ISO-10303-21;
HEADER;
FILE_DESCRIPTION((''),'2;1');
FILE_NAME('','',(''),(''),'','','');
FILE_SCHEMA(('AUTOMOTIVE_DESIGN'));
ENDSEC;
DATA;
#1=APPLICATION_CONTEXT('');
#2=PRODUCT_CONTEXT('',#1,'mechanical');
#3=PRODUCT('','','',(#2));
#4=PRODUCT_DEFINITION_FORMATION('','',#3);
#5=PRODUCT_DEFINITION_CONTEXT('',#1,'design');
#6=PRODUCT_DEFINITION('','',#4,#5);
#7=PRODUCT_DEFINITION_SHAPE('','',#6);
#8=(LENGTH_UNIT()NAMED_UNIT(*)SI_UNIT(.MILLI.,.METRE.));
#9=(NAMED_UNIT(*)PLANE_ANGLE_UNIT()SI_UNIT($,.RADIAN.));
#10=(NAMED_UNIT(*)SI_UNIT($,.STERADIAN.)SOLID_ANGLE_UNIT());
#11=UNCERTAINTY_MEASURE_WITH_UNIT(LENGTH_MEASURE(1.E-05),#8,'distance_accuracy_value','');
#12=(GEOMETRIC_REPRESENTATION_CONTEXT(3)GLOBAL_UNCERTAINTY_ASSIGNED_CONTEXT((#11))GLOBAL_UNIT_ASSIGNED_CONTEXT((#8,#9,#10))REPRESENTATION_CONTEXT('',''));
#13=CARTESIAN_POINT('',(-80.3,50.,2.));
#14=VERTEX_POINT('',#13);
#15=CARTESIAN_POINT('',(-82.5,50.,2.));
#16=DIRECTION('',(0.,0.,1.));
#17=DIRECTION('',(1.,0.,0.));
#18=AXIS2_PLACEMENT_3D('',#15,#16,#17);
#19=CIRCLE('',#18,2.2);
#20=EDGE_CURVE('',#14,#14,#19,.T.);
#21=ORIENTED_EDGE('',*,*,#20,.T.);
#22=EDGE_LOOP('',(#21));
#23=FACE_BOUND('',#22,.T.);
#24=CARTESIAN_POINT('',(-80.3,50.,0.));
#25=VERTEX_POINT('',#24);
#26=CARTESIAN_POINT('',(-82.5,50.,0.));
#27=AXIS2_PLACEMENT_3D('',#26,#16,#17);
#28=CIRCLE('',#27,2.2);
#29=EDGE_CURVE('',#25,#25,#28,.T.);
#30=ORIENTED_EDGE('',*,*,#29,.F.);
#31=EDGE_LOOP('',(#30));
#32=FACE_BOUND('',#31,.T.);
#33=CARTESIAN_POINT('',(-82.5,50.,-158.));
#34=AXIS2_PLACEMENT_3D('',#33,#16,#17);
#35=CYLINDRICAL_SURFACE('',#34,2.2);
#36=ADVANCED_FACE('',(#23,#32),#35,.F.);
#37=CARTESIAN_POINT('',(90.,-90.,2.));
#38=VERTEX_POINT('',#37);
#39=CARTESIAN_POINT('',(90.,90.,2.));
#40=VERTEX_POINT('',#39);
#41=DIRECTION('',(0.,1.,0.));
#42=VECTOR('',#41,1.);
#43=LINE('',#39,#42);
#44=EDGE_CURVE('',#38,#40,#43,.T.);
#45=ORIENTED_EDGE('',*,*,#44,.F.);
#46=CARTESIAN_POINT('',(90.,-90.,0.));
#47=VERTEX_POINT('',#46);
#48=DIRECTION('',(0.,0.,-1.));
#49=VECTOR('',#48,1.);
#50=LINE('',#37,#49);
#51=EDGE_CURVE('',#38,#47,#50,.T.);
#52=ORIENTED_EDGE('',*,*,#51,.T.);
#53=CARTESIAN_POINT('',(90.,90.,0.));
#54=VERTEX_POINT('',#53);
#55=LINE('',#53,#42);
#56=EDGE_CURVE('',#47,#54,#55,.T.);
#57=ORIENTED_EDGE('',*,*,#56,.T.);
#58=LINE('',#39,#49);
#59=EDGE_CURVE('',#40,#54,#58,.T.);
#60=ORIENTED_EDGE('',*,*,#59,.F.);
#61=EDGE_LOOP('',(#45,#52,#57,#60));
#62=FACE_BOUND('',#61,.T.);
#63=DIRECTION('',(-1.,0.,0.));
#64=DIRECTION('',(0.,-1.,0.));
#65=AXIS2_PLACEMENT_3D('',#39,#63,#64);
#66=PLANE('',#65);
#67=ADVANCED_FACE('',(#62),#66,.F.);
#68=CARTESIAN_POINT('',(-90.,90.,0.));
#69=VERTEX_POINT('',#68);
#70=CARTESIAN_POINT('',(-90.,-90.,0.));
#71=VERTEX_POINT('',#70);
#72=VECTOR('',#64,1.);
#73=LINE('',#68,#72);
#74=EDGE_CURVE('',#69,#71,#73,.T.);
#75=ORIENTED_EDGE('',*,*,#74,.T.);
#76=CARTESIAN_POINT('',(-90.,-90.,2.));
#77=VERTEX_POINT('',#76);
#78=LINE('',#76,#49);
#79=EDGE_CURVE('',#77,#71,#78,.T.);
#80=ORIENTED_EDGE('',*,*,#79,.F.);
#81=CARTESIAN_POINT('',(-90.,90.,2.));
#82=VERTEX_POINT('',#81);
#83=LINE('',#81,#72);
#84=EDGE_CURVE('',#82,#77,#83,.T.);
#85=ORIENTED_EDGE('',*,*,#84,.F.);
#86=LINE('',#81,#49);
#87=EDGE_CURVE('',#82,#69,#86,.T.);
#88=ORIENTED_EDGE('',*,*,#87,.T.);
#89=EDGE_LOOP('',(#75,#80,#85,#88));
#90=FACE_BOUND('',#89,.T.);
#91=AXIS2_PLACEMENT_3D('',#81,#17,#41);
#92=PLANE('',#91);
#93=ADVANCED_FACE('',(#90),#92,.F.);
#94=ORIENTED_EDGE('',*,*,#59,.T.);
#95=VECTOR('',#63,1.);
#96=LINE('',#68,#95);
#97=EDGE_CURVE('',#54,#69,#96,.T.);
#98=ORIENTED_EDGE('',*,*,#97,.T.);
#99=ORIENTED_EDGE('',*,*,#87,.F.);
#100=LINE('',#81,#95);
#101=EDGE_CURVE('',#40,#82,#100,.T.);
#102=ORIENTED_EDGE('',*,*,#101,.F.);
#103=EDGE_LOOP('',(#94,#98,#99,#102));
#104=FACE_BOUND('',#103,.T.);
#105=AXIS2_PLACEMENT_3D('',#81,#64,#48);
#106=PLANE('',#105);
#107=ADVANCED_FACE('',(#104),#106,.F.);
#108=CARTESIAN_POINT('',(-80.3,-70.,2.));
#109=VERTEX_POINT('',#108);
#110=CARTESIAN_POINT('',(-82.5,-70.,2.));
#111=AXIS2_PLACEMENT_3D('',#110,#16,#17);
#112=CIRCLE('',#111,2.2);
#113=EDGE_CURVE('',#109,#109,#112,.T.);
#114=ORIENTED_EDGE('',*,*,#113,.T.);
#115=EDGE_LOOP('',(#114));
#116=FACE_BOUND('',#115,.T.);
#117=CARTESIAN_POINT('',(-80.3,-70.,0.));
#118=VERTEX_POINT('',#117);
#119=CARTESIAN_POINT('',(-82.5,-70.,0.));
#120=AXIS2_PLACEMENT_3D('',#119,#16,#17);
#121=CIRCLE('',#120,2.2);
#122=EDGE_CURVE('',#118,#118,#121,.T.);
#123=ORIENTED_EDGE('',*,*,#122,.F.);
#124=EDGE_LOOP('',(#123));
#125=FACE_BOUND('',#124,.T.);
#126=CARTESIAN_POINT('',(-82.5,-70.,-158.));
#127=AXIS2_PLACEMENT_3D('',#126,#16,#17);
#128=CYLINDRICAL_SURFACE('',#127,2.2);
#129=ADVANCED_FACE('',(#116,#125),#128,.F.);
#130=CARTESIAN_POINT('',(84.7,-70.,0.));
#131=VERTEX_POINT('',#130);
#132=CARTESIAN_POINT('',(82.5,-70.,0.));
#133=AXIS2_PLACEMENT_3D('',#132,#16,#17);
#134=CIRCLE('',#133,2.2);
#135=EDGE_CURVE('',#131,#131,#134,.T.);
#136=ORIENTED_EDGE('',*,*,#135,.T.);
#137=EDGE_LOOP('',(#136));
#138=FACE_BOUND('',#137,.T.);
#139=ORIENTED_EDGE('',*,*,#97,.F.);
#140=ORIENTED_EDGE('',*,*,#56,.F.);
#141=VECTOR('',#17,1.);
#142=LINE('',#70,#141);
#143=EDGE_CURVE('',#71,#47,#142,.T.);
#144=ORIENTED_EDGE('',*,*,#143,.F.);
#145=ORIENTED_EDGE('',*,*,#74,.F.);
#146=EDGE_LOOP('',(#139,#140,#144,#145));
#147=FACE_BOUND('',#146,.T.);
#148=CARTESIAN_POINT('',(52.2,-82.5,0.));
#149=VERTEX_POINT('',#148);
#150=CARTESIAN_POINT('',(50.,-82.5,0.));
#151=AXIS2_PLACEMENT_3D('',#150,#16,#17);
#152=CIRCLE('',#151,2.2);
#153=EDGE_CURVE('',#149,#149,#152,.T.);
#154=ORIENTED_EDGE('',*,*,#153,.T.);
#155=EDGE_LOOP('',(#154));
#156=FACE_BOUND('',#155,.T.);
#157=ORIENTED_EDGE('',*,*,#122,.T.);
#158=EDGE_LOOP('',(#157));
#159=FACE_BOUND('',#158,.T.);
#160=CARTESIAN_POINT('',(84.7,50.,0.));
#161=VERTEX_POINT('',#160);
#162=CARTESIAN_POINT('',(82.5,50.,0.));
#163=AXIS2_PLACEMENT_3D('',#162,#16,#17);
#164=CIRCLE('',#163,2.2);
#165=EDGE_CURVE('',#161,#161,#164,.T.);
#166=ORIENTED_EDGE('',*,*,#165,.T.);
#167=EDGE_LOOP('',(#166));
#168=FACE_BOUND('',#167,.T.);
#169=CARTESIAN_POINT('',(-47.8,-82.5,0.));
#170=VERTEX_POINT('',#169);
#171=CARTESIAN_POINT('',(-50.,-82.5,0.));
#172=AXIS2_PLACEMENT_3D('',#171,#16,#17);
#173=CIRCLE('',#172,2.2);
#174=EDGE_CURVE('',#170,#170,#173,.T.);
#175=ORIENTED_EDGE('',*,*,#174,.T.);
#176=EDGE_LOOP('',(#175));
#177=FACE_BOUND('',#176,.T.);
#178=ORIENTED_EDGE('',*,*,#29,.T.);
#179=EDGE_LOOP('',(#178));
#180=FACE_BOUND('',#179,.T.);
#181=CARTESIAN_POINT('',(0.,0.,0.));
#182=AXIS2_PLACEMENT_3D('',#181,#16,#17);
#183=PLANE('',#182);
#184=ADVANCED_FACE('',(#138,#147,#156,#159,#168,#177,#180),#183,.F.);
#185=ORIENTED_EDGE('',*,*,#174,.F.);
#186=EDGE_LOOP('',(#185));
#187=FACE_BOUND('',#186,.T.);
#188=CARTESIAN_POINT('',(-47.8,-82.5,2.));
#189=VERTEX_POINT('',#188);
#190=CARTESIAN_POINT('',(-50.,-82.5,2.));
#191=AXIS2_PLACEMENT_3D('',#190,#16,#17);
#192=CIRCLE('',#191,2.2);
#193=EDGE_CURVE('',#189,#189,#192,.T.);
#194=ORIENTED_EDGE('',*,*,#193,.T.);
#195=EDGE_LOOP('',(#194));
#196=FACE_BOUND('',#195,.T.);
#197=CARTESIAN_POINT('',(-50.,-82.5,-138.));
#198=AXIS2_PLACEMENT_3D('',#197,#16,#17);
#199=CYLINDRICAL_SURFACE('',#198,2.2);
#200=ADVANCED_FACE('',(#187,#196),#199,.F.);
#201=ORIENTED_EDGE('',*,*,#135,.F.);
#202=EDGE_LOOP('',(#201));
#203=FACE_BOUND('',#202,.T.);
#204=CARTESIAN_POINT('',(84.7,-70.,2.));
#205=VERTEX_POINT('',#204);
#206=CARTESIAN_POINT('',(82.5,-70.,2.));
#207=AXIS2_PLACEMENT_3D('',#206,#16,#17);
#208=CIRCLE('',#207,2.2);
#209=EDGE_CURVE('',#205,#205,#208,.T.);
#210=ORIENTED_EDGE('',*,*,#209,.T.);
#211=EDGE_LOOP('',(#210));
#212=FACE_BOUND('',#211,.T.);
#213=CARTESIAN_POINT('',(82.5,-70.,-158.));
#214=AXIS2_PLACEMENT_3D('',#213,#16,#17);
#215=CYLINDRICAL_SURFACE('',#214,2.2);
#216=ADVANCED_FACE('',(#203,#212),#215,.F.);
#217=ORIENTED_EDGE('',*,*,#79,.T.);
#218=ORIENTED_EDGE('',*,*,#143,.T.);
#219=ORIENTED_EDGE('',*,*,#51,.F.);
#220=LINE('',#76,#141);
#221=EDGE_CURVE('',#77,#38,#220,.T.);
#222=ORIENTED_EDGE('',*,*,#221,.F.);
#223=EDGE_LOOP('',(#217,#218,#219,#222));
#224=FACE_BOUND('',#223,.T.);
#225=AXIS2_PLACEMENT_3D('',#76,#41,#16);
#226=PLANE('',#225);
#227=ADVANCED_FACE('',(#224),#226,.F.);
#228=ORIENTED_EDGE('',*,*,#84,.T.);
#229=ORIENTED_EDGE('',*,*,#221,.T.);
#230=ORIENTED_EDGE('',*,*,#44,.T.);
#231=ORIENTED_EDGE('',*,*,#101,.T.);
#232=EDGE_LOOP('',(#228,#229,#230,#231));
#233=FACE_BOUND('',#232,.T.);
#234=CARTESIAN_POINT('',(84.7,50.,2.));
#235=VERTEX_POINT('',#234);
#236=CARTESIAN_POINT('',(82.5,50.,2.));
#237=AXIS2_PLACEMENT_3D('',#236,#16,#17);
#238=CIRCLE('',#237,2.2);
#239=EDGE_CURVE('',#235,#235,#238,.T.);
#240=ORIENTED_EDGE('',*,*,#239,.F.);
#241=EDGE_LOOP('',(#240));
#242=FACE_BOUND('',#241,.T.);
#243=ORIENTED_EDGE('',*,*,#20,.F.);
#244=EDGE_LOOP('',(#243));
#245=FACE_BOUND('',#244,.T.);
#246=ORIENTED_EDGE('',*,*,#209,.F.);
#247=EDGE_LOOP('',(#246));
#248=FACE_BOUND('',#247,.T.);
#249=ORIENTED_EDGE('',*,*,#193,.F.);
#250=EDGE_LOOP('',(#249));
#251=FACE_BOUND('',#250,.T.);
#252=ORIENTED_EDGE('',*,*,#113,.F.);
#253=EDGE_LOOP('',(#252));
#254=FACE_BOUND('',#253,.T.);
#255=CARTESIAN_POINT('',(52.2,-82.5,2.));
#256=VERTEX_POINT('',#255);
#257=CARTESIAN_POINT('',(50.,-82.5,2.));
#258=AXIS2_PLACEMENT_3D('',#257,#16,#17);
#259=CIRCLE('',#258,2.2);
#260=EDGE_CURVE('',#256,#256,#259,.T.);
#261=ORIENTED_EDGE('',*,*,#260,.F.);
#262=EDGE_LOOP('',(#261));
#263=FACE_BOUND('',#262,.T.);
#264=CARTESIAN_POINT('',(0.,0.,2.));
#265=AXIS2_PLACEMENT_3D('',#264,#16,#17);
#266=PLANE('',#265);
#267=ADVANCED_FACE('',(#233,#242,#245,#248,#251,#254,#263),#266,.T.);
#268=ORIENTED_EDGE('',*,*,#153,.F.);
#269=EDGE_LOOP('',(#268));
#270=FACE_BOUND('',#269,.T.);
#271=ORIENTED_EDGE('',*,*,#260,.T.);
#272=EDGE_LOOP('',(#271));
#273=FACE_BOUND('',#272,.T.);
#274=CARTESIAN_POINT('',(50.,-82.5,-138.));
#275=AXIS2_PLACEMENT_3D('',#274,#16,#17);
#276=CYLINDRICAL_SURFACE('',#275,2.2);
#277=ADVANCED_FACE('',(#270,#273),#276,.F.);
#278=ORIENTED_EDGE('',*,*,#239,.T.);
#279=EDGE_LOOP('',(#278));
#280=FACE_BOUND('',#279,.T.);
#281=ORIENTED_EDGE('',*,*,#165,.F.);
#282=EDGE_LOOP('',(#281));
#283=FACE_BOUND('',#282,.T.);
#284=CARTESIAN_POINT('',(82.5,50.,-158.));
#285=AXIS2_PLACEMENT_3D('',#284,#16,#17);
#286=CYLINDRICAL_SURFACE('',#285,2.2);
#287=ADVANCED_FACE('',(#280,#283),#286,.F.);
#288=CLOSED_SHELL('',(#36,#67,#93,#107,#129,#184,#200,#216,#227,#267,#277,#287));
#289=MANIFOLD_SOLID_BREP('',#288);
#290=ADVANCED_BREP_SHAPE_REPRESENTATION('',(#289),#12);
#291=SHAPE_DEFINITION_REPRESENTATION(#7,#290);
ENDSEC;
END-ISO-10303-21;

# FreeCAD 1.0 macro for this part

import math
import FreeCAD as App
import Part
import Sketcher
Q = App.Units.Quantity

doc = App.newDocument("Part")
body = doc.addObject("PartDesign::Body", "Body")

# Sketch on XY plane
sketch1 = doc.addObject("Sketcher::SketchObject", "Sketch")
body.addObject(sketch1)
sketch1.AttachmentSupport = (doc.XY_Plane, [""])
sketch1.MapMode = "FlatFace"
sketch1.addGeometry([
    Part.LineSegment(App.Vector(-90, 90, 0), App.Vector(-90, -90, 0)),
    Part.LineSegment(App.Vector(-90, -90, 0), App.Vector(90, -90, 0)),
    Part.LineSegment(App.Vector(90, -90, 0), App.Vector(90, 90, 0)),
    Part.LineSegment(App.Vector(90, 90, 0), App.Vector(-90, 90, 0)),
], False)
sketch1.addConstraint([
    Sketcher.Constraint("Coincident", 0, 2, 1, 1),
    Sketcher.Constraint("Coincident", 1, 2, 2, 1),
    Sketcher.Constraint("Coincident", 2, 2, 3, 1),
    Sketcher.Constraint("Coincident", 3, 2, 0, 1),
    Sketcher.Constraint("Vertical", 0),
    Sketcher.Constraint("Horizontal", 1),
    Sketcher.Constraint("Vertical", 2),
    Sketcher.Constraint("Horizontal", 3),
    Sketcher.Constraint("Symmetric", 0, 2, 2, 2, -1, 1),
    Sketcher.Constraint("Equal", 3, 0),
    Sketcher.Constraint("DistanceX", 1, 1, 1, 2, Q("180 mm")),
])
pad1 = doc.addObject("PartDesign::Pad", "Pad")
body.addObject(pad1)
pad1.Profile = sketch1
pad1.Length = 2

# Sketch on XY plane
sketch2 = doc.addObject("Sketcher::SketchObject", "Sketch001")
body.addObject(sketch2)
sketch2.AttachmentSupport = (doc.XY_Plane, [""])
sketch2.MapMode = "FlatFace"
sketch2.AttachmentOffset = App.Placement(App.Vector(0, 0, 2), App.Rotation())
sketch2.addGeometry([
    Part.ArcOfCircle(Part.Circle(App.Vector(-50, -82.5, 0), App.Vector(0, 0, 1), 2.2), math.radians(180), math.radians(270)),  # 0
    Part.ArcOfCircle(Part.Circle(App.Vector(-50, -82.5, 0), App.Vector(0, 0, 1), 2.2), math.radians(-90), math.radians(0)),  # 1
    Part.ArcOfCircle(Part.Circle(App.Vector(-50, -82.5, 0), App.Vector(0, 0, 1), 2.2), math.radians(0), math.radians(180)),  # 2
    Part.ArcOfCircle(Part.Circle(App.Vector(50, -82.5, 0), App.Vector(0, 0, 1), 2.2), math.radians(0), math.radians(270)),  # 3
    Part.ArcOfCircle(Part.Circle(App.Vector(50, -82.5, 0), App.Vector(0, 0, 1), 2.2), math.radians(-90), math.radians(0)),  # 4
], False)
sketch2.addConstraint([
    Sketcher.Constraint("Tangent", 0, 2, 1, 1),
    Sketcher.Constraint("Tangent", 1, 2, 2, 1),
    Sketcher.Constraint("Tangent", 2, 2, 0, 1),
    Sketcher.Constraint("Tangent", 3, 1, 4, 2),
    Sketcher.Constraint("Coincident", 4, 1, 3, 2),
    Sketcher.Constraint("Equal", 2, 3),
    Sketcher.Constraint("Symmetric", 0, 3, 3, 3, -2),
    Sketcher.Constraint("Horizontal", 4, 3, 1, 2),
    Sketcher.Constraint("Horizontal", 1, 2, 2, 2),
    Sketcher.Constraint("Horizontal", 2, 2, 3, 1),
    Sketcher.Constraint("Vertical", 2, 3, 0, 2),
    Sketcher.Constraint("Vertical", 3, 3, 4, 1),
    Sketcher.Constraint("Radius", 0, Q("2.2 mm")),
    Sketcher.Constraint("DistanceX", 0, 3, -1, 1, Q("50 mm")),
    Sketcher.Constraint("DistanceY", 0, 3, -1, 1, Q("82.5 mm")),
])
pocket1 = doc.addObject("PartDesign::Pocket", "Pocket")
body.addObject(pocket1)
pocket1.Profile = sketch2
pocket1.Length = 140

# Sketch on XY plane
sketch3 = doc.addObject("Sketcher::SketchObject", "Sketch002")
body.addObject(sketch3)
sketch3.AttachmentSupport = (doc.XY_Plane, [""])
sketch3.MapMode = "FlatFace"
sketch3.AttachmentOffset = App.Placement(App.Vector(0, 0, 2), App.Rotation())
sketch3.addGeometry([
    Part.Circle(App.Vector(-82.5, 50, 0), App.Vector(0, 0, 1), 2.2),
    Part.Circle(App.Vector(82.5, 50, 0), App.Vector(0, 0, 1), 2.2),
    Part.Circle(App.Vector(82.5, -70, 0), App.Vector(0, 0, 1), 2.2),
    Part.Circle(App.Vector(-82.5, -70, 0), App.Vector(0, 0, 1), 2.2),
], False)
sketch3.addConstraint([
    Sketcher.Constraint("Equal", 0, 1),
    Sketcher.Constraint("Equal", 1, 2),
    Sketcher.Constraint("Equal", 2, 3),
    Sketcher.Constraint("Symmetric", 0, 3, 1, 3, -2),
    Sketcher.Constraint("Symmetric", 2, 3, 3, 3, -2),
    Sketcher.Constraint("Vertical", 1, 3, 2, 3),
    Sketcher.Constraint("Diameter", 0, Q("4.4 mm")),
    Sketcher.Constraint("DistanceY", -1, 1, 0, 3, Q("50 mm")),
    Sketcher.Constraint("DistanceY", 2, 3, -1, 1, Q("70 mm")),
    Sketcher.Constraint("DistanceX", 0, 3, 1, 3, Q("165 mm")),
])
pocket2 = doc.addObject("PartDesign::Pocket", "Pocket001")
body.addObject(pocket2)
pocket2.Profile = sketch3
pocket2.Length = 160

doc.recompute()
